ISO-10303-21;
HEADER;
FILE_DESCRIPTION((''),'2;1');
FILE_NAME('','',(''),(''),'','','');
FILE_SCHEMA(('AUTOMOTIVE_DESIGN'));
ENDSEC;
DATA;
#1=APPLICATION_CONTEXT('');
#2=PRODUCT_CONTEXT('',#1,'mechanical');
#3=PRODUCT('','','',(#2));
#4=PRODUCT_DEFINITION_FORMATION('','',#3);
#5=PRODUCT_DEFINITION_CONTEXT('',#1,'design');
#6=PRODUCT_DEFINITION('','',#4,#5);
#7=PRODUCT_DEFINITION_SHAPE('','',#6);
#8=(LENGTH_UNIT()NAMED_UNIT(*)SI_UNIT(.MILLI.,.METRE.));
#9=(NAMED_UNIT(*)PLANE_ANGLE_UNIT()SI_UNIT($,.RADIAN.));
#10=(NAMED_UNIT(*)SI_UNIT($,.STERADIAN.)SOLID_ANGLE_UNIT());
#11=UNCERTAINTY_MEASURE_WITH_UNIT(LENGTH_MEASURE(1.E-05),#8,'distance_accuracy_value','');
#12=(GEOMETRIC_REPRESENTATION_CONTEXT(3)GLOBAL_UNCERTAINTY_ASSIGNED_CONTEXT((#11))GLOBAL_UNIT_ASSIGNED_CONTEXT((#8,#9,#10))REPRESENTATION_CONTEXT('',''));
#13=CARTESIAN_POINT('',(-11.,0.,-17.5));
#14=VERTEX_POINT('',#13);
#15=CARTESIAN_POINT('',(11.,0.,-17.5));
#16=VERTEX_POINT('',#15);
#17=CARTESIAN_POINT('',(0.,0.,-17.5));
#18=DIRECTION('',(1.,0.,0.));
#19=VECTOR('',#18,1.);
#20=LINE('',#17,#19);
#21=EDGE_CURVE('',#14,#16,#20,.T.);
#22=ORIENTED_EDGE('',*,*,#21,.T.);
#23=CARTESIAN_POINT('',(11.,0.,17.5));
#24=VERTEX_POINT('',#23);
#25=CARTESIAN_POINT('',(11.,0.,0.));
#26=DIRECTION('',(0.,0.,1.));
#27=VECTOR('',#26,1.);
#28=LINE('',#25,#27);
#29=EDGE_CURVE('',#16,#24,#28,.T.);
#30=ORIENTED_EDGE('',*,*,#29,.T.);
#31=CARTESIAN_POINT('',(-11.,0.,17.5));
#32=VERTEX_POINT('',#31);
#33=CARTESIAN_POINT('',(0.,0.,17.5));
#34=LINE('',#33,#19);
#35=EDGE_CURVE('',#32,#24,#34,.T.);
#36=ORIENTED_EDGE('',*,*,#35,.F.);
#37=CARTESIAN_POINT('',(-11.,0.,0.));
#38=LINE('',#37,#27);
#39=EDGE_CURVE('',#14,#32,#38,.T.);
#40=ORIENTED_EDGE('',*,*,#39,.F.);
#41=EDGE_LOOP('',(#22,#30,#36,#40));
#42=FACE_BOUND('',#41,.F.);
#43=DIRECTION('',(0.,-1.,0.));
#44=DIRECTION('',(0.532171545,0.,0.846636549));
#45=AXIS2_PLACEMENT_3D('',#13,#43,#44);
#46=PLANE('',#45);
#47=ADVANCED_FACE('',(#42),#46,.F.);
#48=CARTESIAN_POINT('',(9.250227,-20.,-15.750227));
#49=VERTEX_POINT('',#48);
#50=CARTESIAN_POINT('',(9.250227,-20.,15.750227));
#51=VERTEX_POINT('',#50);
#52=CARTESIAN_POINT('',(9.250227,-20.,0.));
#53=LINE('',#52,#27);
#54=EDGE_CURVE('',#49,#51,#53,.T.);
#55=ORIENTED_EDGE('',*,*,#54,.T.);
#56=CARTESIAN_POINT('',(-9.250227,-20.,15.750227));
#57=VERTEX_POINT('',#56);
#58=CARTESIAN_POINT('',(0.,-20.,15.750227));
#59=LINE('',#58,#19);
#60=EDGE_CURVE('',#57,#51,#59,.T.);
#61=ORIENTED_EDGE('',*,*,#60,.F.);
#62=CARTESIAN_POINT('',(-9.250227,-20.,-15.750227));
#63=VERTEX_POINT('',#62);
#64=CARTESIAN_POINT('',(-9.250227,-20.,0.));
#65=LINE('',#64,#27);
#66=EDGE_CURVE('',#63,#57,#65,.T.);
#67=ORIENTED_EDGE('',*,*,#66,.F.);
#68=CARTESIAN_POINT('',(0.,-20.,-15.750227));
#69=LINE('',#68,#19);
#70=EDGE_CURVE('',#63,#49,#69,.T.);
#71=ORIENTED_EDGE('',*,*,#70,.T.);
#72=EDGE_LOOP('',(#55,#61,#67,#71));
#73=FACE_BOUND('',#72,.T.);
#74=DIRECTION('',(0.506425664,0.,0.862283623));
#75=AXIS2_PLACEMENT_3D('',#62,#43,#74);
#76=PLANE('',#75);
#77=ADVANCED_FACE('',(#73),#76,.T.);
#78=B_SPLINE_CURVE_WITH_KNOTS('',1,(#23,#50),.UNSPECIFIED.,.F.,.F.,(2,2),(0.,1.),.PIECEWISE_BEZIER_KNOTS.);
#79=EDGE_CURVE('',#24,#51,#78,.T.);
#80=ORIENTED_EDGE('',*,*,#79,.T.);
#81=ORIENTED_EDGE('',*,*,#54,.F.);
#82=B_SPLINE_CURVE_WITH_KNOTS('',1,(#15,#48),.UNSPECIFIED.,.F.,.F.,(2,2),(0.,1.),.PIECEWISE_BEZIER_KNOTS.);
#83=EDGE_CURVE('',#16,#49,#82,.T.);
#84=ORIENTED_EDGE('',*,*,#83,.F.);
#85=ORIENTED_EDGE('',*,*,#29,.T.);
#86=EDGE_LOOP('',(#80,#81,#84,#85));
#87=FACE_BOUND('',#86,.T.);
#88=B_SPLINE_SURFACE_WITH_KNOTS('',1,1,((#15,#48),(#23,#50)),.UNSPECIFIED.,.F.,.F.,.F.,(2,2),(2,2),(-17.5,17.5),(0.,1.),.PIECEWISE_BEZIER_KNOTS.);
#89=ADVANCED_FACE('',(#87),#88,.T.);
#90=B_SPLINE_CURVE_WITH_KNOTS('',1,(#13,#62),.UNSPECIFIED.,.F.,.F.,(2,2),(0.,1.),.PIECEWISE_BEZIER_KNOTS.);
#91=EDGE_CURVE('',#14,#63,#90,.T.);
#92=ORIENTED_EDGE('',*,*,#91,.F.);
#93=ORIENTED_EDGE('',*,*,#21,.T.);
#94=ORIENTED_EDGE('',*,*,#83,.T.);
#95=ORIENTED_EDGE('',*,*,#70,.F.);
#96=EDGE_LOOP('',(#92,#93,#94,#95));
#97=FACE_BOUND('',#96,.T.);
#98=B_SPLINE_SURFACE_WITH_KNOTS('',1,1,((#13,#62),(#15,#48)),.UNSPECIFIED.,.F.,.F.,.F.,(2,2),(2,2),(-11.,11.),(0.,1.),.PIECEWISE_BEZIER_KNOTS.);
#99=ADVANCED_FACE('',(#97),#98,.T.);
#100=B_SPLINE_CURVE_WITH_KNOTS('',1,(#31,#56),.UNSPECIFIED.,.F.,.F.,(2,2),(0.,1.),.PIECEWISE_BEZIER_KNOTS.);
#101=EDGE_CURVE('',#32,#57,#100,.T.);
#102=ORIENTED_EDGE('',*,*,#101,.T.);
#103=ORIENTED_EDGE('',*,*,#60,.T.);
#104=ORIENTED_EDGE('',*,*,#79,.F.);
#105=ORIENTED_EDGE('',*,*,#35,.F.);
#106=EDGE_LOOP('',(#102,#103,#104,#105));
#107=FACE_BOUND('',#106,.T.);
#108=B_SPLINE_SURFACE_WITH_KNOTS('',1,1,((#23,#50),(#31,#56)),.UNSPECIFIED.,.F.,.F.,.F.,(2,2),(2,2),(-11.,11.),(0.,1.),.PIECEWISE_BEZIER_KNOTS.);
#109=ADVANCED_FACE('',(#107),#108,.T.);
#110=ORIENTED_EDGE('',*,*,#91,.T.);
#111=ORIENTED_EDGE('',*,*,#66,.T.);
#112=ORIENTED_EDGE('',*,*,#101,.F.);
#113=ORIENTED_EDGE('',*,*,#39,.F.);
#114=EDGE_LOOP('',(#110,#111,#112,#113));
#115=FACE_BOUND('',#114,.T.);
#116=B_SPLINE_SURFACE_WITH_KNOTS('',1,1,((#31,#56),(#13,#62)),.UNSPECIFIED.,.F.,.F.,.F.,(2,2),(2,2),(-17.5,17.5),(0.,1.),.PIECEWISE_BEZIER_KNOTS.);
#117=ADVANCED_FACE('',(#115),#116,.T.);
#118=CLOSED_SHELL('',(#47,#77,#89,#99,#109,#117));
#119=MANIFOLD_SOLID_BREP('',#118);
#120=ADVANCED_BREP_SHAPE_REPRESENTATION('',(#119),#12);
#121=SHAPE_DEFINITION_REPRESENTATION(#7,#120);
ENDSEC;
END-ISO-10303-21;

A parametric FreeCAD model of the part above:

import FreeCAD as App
import Part
import Sketcher
from FreeCAD import Vector

doc = App.newDocument("Part")
params = doc.addObject("Spreadsheet::Sheet", "Params")
for row, (alias, value) in enumerate([
    ("sketch1_width", "22 mm"),
    ("sketch1_height", "35 mm"),
    ("pad1_length", "20 mm"),
    ("pad1_taper", "-5 deg"),
], start=1):
    params.set(f"A{row}", alias)
    params.set(f"B{row}", "=" + value)
    params.setAlias(f"B{row}", alias)

body = doc.addObject("PartDesign::Body", "Body")

# Sketch on XZ plane
sketch1 = body.newObject("Sketcher::SketchObject", "Sketch")
sketch1.AttachmentSupport = (doc.getObject("XZ_Plane"), [""])
sketch1.MapMode = "FlatFace"
sketch1.addGeometry(Part.LineSegment(Vector(-11, 18, 0), Vector(-11, -18, 0)), False)
sketch1.addGeometry(Part.LineSegment(Vector(-11, -18, 0), Vector(11, -18, 0)), False)
sketch1.addGeometry(Part.LineSegment(Vector(11, -18, 0), Vector(11, 18, 0)), False)
sketch1.addGeometry(Part.LineSegment(Vector(11, 18, 0), Vector(-11, 18, 0)), False)
sketch1.addConstraint(Sketcher.Constraint("Coincident", 0, 2, 1, 1))
sketch1.addConstraint(Sketcher.Constraint("Coincident", 1, 2, 2, 1))
sketch1.addConstraint(Sketcher.Constraint("Coincident", 2, 2, 3, 1))
sketch1.addConstraint(Sketcher.Constraint("Coincident", 3, 2, 0, 1))
sketch1.addConstraint(Sketcher.Constraint("Vertical", 0))
sketch1.addConstraint(Sketcher.Constraint("Horizontal", 1))
sketch1.addConstraint(Sketcher.Constraint("Vertical", 2))
sketch1.addConstraint(Sketcher.Constraint("Horizontal", 3))
sketch1.addConstraint(Sketcher.Constraint("Symmetric", 0, 2, 2, 2, -1, 1))
sketch1.addConstraint(Sketcher.Constraint("DistanceX", 1, 1, 1, 2, 22.0))
sketch1.addConstraint(Sketcher.Constraint("DistanceY", 0, 2, 0, 1, 35.0))
sketch1.setExpression("Constraints[9]", "Params.sketch1_width")
sketch1.setExpression("Constraints[10]", "Params.sketch1_height")
pad1 = body.newObject("PartDesign::Pad", "Pad")
pad1.Profile = sketch1
pad1.setExpression("Length", "Params.pad1_length")
pad1.setExpression("TaperAngle", "Params.pad1_taper")

doc.recompute()
